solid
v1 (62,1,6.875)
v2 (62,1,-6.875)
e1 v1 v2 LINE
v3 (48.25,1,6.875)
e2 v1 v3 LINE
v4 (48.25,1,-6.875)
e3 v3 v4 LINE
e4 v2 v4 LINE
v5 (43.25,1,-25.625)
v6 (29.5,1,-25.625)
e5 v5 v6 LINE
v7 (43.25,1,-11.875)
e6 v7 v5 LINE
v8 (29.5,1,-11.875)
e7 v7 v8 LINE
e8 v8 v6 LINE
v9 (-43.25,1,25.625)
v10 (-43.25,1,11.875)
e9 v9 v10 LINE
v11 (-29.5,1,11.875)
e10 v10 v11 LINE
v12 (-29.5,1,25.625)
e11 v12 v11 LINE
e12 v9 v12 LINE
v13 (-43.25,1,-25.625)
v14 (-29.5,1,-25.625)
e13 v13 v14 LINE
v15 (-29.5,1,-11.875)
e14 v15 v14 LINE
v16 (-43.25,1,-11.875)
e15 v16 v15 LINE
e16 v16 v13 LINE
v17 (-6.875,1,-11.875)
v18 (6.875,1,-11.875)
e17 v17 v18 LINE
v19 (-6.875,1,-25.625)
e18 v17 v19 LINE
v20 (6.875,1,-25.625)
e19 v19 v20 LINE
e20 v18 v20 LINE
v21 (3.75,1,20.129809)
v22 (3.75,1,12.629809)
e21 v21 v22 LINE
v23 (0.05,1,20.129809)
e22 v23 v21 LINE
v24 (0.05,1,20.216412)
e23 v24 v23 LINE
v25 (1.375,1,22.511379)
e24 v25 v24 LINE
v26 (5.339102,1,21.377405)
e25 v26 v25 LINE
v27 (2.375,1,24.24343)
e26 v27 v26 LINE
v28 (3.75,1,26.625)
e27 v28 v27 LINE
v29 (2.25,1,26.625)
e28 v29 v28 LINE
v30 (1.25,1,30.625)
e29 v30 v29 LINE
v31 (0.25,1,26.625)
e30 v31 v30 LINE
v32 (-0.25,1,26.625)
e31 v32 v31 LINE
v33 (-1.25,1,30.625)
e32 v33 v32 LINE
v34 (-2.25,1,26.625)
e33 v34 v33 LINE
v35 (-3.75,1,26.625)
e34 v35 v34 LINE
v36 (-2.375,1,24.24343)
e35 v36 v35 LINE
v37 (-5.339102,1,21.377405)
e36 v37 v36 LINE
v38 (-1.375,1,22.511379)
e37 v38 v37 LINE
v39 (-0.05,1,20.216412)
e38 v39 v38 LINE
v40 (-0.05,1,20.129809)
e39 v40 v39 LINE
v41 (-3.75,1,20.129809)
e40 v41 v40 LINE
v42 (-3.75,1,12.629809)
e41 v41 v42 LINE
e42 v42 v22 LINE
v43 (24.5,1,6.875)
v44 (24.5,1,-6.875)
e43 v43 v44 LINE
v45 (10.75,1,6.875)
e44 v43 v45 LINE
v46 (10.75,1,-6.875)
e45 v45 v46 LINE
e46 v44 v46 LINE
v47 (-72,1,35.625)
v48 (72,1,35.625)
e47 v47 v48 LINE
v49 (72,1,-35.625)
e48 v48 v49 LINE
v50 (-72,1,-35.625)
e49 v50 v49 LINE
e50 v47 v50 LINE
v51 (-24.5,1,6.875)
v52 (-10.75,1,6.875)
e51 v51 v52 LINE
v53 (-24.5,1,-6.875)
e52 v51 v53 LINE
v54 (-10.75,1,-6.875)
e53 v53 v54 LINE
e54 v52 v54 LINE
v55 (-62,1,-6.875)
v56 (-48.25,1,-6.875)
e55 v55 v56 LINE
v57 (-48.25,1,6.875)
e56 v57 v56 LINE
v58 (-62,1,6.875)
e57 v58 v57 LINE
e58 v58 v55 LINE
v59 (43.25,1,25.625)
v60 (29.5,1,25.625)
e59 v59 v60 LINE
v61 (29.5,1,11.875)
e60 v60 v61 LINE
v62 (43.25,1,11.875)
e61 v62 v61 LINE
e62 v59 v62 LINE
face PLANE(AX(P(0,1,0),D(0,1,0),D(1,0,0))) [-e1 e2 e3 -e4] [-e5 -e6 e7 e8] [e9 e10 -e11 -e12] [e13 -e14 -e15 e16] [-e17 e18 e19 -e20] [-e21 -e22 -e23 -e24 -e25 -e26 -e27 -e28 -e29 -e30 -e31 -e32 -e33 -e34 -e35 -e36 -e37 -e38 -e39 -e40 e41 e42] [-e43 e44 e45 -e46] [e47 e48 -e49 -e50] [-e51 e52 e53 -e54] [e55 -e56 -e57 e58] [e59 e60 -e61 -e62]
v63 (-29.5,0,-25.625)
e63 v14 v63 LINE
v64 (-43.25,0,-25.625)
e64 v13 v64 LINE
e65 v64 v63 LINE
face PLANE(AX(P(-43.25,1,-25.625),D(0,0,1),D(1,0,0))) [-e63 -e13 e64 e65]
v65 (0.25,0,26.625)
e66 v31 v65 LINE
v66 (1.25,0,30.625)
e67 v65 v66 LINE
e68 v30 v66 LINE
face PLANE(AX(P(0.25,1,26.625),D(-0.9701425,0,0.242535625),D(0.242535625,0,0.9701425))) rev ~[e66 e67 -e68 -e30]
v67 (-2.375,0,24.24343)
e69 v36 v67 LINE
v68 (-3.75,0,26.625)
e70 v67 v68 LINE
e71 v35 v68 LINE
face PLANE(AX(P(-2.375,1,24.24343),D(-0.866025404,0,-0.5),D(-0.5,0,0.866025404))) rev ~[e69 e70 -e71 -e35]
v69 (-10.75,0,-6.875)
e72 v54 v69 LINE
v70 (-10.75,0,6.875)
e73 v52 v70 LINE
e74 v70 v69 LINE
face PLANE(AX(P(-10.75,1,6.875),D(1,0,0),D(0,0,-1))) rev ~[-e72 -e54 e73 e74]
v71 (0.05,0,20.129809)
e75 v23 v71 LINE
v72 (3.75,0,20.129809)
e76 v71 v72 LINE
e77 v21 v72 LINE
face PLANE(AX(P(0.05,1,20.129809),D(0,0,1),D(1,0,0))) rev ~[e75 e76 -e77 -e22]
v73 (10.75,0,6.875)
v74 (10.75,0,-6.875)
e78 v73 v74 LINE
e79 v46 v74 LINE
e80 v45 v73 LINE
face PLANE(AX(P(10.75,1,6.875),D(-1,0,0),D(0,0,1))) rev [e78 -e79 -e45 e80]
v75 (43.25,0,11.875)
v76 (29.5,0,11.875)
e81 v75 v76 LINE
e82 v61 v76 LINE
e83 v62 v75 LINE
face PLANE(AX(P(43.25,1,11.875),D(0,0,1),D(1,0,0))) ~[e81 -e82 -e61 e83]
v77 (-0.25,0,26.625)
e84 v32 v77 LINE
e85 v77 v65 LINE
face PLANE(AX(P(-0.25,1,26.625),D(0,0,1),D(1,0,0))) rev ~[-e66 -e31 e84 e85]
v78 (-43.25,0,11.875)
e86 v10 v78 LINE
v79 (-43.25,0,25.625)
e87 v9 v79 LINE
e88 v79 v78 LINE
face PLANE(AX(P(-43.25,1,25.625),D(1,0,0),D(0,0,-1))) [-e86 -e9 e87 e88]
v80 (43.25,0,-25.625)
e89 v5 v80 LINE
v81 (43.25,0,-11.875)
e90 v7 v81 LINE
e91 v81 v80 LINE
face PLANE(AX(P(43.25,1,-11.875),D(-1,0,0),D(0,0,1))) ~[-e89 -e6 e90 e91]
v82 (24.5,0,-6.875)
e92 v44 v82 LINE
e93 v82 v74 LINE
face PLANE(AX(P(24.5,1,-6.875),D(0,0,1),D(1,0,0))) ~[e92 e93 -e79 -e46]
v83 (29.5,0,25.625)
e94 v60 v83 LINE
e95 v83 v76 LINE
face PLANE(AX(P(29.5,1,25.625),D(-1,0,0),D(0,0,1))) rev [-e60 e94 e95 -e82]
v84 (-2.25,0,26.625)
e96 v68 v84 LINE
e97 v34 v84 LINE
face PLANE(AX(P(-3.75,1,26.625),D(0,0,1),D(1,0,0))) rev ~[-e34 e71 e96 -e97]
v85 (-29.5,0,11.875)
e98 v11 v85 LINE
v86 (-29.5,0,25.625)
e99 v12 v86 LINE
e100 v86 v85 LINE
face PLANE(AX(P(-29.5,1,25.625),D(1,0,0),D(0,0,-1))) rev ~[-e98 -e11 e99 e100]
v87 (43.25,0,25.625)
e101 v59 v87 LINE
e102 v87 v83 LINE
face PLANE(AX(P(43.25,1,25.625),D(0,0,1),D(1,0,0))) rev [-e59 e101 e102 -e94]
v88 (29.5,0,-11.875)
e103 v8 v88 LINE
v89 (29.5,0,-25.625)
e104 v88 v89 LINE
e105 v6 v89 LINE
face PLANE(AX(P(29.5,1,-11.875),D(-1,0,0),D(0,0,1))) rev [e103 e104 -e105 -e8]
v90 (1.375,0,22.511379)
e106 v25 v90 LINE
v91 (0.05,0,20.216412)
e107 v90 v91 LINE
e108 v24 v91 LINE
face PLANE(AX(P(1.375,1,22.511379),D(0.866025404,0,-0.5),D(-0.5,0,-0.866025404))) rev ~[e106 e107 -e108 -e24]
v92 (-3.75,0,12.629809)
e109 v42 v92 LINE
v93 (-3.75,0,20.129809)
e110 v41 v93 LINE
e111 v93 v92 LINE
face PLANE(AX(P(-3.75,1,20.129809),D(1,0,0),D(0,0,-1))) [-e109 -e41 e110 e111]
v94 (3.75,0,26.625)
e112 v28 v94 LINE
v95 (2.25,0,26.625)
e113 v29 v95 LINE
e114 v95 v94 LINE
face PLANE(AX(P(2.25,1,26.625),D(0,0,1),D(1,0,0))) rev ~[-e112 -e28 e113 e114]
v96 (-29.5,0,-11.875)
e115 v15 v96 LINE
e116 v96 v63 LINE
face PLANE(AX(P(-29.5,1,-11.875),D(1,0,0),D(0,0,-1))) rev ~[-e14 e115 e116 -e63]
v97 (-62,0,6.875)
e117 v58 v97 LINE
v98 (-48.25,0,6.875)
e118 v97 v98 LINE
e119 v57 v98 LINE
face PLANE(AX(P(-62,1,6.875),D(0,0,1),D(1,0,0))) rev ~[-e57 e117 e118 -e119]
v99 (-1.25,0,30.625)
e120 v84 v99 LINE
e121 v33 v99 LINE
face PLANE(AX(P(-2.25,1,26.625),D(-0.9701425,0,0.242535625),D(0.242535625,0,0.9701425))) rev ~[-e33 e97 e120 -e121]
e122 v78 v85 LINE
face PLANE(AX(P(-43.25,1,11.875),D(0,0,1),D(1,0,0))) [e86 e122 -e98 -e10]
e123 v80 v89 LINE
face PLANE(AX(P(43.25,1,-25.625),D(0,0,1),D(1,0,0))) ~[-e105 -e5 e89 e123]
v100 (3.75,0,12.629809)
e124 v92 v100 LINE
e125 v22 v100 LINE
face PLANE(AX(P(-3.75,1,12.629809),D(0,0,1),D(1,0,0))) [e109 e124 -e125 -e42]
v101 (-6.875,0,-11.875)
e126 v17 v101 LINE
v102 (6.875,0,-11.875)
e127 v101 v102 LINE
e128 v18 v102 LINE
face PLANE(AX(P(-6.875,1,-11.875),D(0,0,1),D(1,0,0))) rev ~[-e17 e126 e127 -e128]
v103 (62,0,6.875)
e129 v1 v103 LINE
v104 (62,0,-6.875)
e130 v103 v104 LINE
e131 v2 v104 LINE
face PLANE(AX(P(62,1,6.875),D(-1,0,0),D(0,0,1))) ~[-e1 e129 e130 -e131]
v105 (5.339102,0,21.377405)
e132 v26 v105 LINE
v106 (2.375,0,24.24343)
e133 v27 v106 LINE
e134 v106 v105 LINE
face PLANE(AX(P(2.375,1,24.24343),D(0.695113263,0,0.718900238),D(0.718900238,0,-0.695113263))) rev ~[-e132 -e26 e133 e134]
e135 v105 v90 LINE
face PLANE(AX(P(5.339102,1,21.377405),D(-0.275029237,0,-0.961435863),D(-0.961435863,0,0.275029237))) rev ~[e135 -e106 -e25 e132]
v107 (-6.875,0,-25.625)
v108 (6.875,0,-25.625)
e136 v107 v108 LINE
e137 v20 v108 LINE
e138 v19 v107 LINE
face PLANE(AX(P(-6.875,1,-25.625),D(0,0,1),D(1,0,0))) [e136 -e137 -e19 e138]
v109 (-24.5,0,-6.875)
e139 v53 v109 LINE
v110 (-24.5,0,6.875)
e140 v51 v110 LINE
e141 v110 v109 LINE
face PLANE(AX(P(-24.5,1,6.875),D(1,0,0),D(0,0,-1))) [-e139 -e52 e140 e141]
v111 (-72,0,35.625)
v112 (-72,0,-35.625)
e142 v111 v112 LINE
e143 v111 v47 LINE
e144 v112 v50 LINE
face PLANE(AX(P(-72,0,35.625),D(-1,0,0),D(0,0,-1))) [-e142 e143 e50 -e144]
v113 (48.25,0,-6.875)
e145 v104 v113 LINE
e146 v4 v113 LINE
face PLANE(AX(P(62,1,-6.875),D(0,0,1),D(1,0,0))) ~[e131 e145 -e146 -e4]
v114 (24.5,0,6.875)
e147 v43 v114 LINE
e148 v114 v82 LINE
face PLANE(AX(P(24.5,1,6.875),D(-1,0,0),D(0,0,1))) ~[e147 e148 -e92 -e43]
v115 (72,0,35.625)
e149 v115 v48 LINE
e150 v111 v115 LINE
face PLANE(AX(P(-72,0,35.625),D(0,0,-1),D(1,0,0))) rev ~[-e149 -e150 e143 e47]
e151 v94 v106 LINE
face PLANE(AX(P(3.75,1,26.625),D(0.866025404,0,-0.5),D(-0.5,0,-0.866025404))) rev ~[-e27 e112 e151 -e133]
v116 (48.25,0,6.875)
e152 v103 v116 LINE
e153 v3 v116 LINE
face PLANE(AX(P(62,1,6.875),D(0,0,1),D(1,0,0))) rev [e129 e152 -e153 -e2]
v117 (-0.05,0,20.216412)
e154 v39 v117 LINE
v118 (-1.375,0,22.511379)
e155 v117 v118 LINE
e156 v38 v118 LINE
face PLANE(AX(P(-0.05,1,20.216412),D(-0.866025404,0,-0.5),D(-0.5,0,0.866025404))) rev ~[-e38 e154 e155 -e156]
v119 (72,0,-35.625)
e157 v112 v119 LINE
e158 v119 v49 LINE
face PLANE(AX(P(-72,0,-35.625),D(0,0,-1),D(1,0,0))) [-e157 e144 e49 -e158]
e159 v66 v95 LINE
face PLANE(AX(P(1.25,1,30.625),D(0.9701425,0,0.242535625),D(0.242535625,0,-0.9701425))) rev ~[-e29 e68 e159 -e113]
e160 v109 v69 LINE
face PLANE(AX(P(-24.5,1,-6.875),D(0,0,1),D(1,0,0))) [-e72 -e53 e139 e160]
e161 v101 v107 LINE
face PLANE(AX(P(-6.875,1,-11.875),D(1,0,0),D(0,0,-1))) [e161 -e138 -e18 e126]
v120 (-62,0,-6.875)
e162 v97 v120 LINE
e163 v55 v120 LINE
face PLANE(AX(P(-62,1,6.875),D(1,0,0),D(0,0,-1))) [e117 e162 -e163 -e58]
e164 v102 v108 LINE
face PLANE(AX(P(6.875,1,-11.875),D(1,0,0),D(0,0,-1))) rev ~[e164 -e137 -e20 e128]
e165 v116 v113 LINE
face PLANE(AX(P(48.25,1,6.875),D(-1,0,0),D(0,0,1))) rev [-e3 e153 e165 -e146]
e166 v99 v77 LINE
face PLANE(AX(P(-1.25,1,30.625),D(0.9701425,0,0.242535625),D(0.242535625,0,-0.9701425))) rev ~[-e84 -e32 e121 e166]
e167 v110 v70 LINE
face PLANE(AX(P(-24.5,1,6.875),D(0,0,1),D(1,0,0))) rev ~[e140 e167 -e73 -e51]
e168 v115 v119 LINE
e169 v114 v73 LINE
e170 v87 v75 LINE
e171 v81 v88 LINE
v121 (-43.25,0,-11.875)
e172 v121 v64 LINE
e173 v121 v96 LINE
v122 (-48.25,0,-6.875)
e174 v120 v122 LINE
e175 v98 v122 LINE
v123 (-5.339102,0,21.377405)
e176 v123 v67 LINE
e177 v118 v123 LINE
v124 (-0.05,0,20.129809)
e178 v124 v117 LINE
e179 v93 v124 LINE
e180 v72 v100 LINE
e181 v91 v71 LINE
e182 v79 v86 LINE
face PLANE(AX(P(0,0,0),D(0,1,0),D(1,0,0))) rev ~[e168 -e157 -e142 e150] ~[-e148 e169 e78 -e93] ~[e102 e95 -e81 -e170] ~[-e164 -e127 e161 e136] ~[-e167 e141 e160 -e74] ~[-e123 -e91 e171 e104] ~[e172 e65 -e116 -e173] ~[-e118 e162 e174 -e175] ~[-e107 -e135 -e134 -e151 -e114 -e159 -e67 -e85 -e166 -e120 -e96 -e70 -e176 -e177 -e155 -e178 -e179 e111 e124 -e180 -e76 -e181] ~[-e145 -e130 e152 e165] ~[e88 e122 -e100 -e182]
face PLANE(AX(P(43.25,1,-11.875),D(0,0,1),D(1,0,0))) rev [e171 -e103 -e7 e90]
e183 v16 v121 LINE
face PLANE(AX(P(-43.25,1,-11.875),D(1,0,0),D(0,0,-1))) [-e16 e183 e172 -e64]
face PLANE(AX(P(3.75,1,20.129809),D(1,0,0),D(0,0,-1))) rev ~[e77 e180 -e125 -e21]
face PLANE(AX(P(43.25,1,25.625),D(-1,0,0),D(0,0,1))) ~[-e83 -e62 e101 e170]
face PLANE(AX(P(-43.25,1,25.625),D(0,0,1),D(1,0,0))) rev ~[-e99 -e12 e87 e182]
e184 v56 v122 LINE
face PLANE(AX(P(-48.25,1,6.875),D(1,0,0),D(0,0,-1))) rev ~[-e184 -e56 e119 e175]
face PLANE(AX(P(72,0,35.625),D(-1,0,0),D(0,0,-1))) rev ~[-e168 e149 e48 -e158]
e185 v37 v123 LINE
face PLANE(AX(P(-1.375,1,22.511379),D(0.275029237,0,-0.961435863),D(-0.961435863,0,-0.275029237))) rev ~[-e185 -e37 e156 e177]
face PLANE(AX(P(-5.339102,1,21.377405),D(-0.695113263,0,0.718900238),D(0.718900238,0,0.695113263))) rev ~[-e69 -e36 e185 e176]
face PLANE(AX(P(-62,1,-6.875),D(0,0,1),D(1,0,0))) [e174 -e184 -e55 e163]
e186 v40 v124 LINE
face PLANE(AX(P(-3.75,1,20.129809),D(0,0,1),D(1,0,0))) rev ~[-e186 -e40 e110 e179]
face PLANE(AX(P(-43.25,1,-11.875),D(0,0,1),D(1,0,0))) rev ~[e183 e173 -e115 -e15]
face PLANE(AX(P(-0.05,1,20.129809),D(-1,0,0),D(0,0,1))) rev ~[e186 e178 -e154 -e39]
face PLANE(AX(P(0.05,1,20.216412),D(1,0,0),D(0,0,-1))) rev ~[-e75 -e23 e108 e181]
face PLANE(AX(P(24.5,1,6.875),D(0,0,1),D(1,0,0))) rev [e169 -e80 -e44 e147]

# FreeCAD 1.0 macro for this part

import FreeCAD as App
import Part
import Sketcher
from FreeCAD import Vector
Q = App.Units.Quantity


def add_polygon(sketch, points):
    """Adds a closed chain of lines whose ends are joined by coincident constraints."""
    first, n = sketch.GeometryCount, len(points)
    for a, b in zip(points, points[1:] + points[:1]):
        sketch.addGeometry(Part.LineSegment(App.Vector(*a, 0), App.Vector(*b, 0)), False)
    for i in range(n):
        sketch.addConstraint(Sketcher.Constraint("Coincident", first + i, 2, first + (i + 1) % n, 1))

doc = App.newDocument("Part")
body = doc.addObject("PartDesign::Body", "Body")

sketch1 = body.newObject("Sketcher::SketchObject", "Sketch")
sketch1.AttachmentSupport = (doc.getObject("XZ_Plane"), [""])
sketch1.MapMode = "FlatFace"
add_polygon(sketch1, [(-72, -35.625), (-72, 35.625), (72, 35.625), (72, -35.625)])
sketch1.addConstraint([
    Sketcher.Constraint("Vertical", 0),
    Sketcher.Constraint("Horizontal", 1),
    Sketcher.Constraint("Vertical", 2),
    Sketcher.Constraint("Horizontal", 3),
    Sketcher.Constraint("Symmetric", 0, 2, 2, 2, -1, 1),
    Sketcher.Constraint("DistanceX", 1, 1, 1, 2, 144.0),
    Sketcher.Constraint("DistanceY", 0, 1, 0, 2, 71.25),
])
pad1 = body.newObject("PartDesign::Pad", "Pad")
pad1.Profile = sketch1
pad1.Length = 1
pad1.Reversed = True

sketch2 = body.newObject("Sketcher::SketchObject", "Sketch001")
sketch2.AttachmentSupport = (doc.getObject("XZ_Plane"), [""])
sketch2.MapMode = "FlatFace"
sketch2.AttachmentOffset = App.Placement(Vector(0, 0, -1), App.Rotation())
add_polygon(sketch2, [(-43.25, -25.625), (-43.25, -11.875), (-29.5, -11.875), (-29.5, -25.625)])
add_polygon(sketch2, [(-62, -6.875), (-62, 6.875), (-48.25, 6.875), (-48.25, -6.875)])
add_polygon(sketch2, [(-43.25, 11.875), (-43.25, 25.625), (-29.5, 25.625), (-29.5, 11.875)])
add_polygon(sketch2, [(-24.5, -6.875), (-24.5, 6.875), (-10.75, 6.875), (-10.75, -6.875)])
sketch2.addConstraint([
    Sketcher.Constraint("Vertical", 0),
    Sketcher.Constraint("Horizontal", 1),
    Sketcher.Constraint("Vertical", 2),
    Sketcher.Constraint("Horizontal", 3),
    Sketcher.Constraint("Vertical", 4),
    Sketcher.Constraint("Horizontal", 5),
    Sketcher.Constraint("Vertical", 6),
    Sketcher.Constraint("Horizontal", 7),
    Sketcher.Constraint("Vertical", 8),
    Sketcher.Constraint("Horizontal", 9),
    Sketcher.Constraint("Vertical", 10),
    Sketcher.Constraint("Horizontal", 11),
    Sketcher.Constraint("Vertical", 12),
    Sketcher.Constraint("Horizontal", 13),
    Sketcher.Constraint("Vertical", 14),
    Sketcher.Constraint("Horizontal", 15),
    Sketcher.Constraint("Symmetric", 3, 2, 8, 2, -1),
    Sketcher.Constraint("Symmetric", 1, 2, 10, 2, -1),
    Sketcher.Constraint("Horizontal", 5, 2, 12, 2),
    Sketcher.Constraint("Horizontal", 7, 2, 14, 2),
    Sketcher.Constraint("Equal", 3, 5),
    Sketcher.Constraint("Equal", 11, 13),
    Sketcher.Constraint("Equal", 15, 0),
    Sketcher.Constraint("Equal", 2, 4),
    Sketcher.Constraint("DistanceX", 4, 2, -1, 1, 62.0),
    Sketcher.Constraint("DistanceX", 5, 2, 0, 2, 5.0),
    Sketcher.Constraint("DistanceY", 0, 2, 6, 2, 5.0),
    Sketcher.Constraint("DistanceY", 5, 2, 10, 2, 5.0),
    Sketcher.Constraint("DistanceX", 10, 2, 12, 2, 5.0),
    Sketcher.Constraint("DistanceX", 1, 1, 1, 2, 13.75),
])
pocket1 = body.newObject("PartDesign::Pocket", "Pocket")
pocket1.Profile = sketch2
pocket1.Type = "ThroughAll"
pocket1.Reversed = True
doc.recompute()

mirrored = body.newObject("PartDesign::Mirrored", "Mirrored")
mirrored.Originals = [pocket1]
mirrored.MirrorPlane = (doc.getObject("YZ_Plane"), [""])
body.Tip = mirrored

sketch3 = body.newObject("Sketcher::SketchObject", "Sketch002")
sketch3.AttachmentSupport = (doc.getObject("XZ_Plane"), [""])
sketch3.MapMode = "FlatFace"
sketch3.AttachmentOffset = App.Placement(Vector(0, 0, -1), App.Rotation())
add_polygon(sketch3, [(-6.875, -25.625), (-6.875, -11.875), (6.875, -11.875), (6.875, -25.625)])
sketch3.addConstraint([
    Sketcher.Constraint("Vertical", 0),
    Sketcher.Constraint("Horizontal", 1),
    Sketcher.Constraint("Vertical", 2),
    Sketcher.Constraint("Horizontal", 3),
    Sketcher.Constraint("Equal", 3, 0),
    Sketcher.Constraint("DistanceX", 1, 1, 1, 2, 13.75),
    Sketcher.Constraint("DistanceX", 0, 2, -1, 1, 6.875),
    Sketcher.Constraint("DistanceY", 0, 2, -1, 1, 11.875),
])
pocket2 = body.newObject("PartDesign::Pocket", "Pocket001")
pocket2.Profile = sketch3
pocket2.Type = "ThroughAll"
pocket2.Reversed = True

sketch4 = body.newObject("Sketcher::SketchObject", "Sketch003")
sketch4.AttachmentSupport = (doc.getObject("XZ_Plane"), [""])
sketch4.MapMode = "FlatFace"
sketch4.AttachmentOffset = App.Placement(Vector(0, 0, -1), App.Rotation())
add_polygon(sketch4, [(-3.75, 12.629809), (-3.75, 20.129809), (-0.05, 20.129809), (-0.05, 20.216412), (-1.375, 22.511379), (-5.339102, 21.377405), (-2.375, 24.24343), (-3.75, 26.625), (-2.25, 26.625), (-1.25, 30.625), (-0.25, 26.625), (0.25, 26.625), (1.25, 30.625), (2.25, 26.625), (3.75, 26.625), (2.375, 24.24343), (5.339102, 21.377405), (1.375, 22.511379), (0.05, 20.216412), (0.05, 20.129809), (3.75, 20.129809), (3.75, 12.629809)])
sketch4.addConstraint([
    Sketcher.Constraint("Vertical", 0),
    Sketcher.Constraint("Horizontal", 1),
    Sketcher.Constraint("Vertical", 2),
    Sketcher.Constraint("Horizontal", 7),
    Sketcher.Constraint("Horizontal", 10),
    Sketcher.Constraint("Horizontal", 13),
    Sketcher.Constraint("Vertical", 18),
    Sketcher.Constraint("Horizontal", 19),
    Sketcher.Constraint("Vertical", 20),
    Sketcher.Constraint("Horizontal", 21),
    Sketcher.Constraint("Symmetric", 8, 2, 11, 2, -2),
    Sketcher.Constraint("Symmetric", 7, 2, 12, 2, -2),
    Sketcher.Constraint("Symmetric", 5, 2, 14, 2, -2),
    Sketcher.Constraint("Symmetric", 4, 2, 15, 2, -2),
    Sketcher.Constraint("Symmetric", 3, 2, 16, 2, -2),
    Sketcher.Constraint("Symmetric", 2, 2, 17, 2, -2),
    Sketcher.Constraint("Symmetric", 0, 2, 19, 2, -2),
    Sketcher.Constraint("Parallel", 3, 6),
    Sketcher.Constraint("Parallel", 8, 11),
    Sketcher.Constraint("Parallel", 9, 12),
    Sketcher.Constraint("Parallel", 14, 17),
    Sketcher.Constraint("Horizontal", 7, 2, 9, 2),
    Sketcher.Constraint("Vertical", 0, 2, 6, 2),
    Sketcher.Constraint("Equal", 21, 0),
    Sketcher.Constraint("Equal", 4, 5),
    Sketcher.Constraint("Equal", 5, 8),
    Sketcher.Constraint("Angle", 3, Q("120 deg")),
    Sketcher.Constraint("DistanceX", 1, 1, 1, 2, 3.7),
    Sketcher.Constraint("DistanceX", 7, 1, 7, 2, 1.5),
    Sketcher.Constraint("DistanceX", 10, 1, 10, 2, 0.5),
    Sketcher.Constraint("DistanceX", 21, 2, 21, 1, 7.5),
    Sketcher.Constraint("DistanceX", 5, 2, 3, 2, 1.0),
    Sketcher.Constraint("DistanceY", 7, 2, 8, 2, 4.0),
    Sketcher.Constraint("Distance", 3, 2.65),
    Sketcher.Constraint("DistanceY", -1, 1, 6, 2, 26.625),
    Sketcher.Constraint("DistanceX", 4, 2, -1, 1, 5.339102),
    Sketcher.Constraint("DistanceY", 2, 1, 2, 2, 0.086603),
])
pocket3 = body.newObject("PartDesign::Pocket", "Pocket002")
pocket3.Profile = sketch4
pocket3.Type = "ThroughAll"
pocket3.Reversed = True

doc.recompute()
